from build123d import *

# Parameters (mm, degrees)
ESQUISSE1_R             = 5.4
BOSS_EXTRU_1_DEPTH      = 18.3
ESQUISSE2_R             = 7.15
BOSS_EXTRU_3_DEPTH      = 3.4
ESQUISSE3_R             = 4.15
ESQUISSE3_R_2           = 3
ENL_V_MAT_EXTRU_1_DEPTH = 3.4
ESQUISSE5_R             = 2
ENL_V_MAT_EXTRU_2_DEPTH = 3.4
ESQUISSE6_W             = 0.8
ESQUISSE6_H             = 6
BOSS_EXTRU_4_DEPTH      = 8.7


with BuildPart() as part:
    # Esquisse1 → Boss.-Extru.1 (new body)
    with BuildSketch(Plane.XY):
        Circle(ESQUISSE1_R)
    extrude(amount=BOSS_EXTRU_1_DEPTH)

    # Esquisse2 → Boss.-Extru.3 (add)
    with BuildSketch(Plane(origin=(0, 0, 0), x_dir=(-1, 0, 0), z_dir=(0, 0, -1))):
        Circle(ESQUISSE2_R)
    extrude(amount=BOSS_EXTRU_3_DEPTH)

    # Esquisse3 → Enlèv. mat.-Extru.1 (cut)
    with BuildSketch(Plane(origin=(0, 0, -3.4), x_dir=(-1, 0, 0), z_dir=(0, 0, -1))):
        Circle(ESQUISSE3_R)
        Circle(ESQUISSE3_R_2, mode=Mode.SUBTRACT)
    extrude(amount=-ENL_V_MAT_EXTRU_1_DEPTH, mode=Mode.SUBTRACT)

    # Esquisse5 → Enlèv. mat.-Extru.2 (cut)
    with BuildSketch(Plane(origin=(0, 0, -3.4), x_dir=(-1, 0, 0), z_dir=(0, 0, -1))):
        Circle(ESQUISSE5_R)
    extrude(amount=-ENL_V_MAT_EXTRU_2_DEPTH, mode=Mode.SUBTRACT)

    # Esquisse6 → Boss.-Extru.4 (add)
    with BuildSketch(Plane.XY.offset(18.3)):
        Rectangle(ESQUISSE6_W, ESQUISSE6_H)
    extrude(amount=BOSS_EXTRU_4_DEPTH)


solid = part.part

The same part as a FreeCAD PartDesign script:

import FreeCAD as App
import Part
import Sketcher
Q = App.Units.Quantity


def add_polygon(sketch, points):
    """Adds a closed chain of lines whose ends are joined by coincident constraints."""
    first, n = sketch.GeometryCount, len(points)
    for a, b in zip(points, points[1:] + points[:1]):
        sketch.addGeometry(Part.LineSegment(App.Vector(*a, 0), App.Vector(*b, 0)), False)
    for i in range(n):
        sketch.addConstraint(Sketcher.Constraint("Coincident", first + i, 2, first + (i + 1) % n, 1))

doc = App.newDocument("Part")
params = doc.addObject("Spreadsheet::Sheet", "Params")
for row, (alias, value) in enumerate([
    ("sketch1_diameter", "10.8 mm"),
    ("pad1_length", "18.3 mm"),
    ("sketch2_diameter", "14.3 mm"),
    ("pad2_length", "3.4 mm"),
    ("sketch3_diameter", "6 mm"),
    ("sketch3_diameter2", "8.3 mm"),
    ("pocket1_length", "3.4 mm"),
    ("sketch4_diameter", "4 mm"),
    ("pocket2_length", "3.4 mm"),
    ("sketch5_height", "6 mm"),
    ("sketch5_width", "0.8 mm"),
    ("pad3_length", "8.7 mm"),
], start=1):
    params.set(f"A{row}", alias)
    params.set(f"B{row}", "=" + value)
    params.setAlias(f"B{row}", alias)

body = doc.addObject("PartDesign::Body", "Body")

# Sketch on XY plane
sketch1 = doc.addObject("Sketcher::SketchObject", "Sketch")
body.addObject(sketch1)
sketch1.AttachmentSupport = (doc.XY_Plane, [""])
sketch1.MapMode = "FlatFace"
sketch1.addGeometry(Part.Circle(App.Vector(0, 0, 0), App.Vector(0, 0, 1), 5.4), False)
sketch1.addConstraint([
    Sketcher.Constraint("Coincident", 0, 3, -1, 1),
    Sketcher.Constraint("Diameter", 0, Q("10.8 mm")),
])
sketch1.setExpression("Constraints[1]", "Params.sketch1_diameter")
pad1 = doc.addObject("PartDesign::Pad", "Pad")
body.addObject(pad1)
pad1.Profile = sketch1
pad1.setExpression("Length", "Params.pad1_length")

# Sketch on XY plane
sketch2 = doc.addObject("Sketcher::SketchObject", "Sketch001")
body.addObject(sketch2)
sketch2.AttachmentSupport = (doc.XY_Plane, [""])
sketch2.MapMode = "FlatFace"
sketch2.addGeometry(Part.Circle(App.Vector(0, 0, 0), App.Vector(0, 0, 1), 7.15), False)
sketch2.addConstraint([
    Sketcher.Constraint("Coincident", 0, 3, -1, 1),
    Sketcher.Constraint("Diameter", 0, Q("14.3 mm")),
])
sketch2.setExpression("Constraints[1]", "Params.sketch2_diameter")
pad2 = doc.addObject("PartDesign::Pad", "Pad001")
body.addObject(pad2)
pad2.Profile = sketch2
pad2.setExpression("Length", "Params.pad2_length")
pad2.Reversed = True

# Sketch on XY plane
sketch3 = doc.addObject("Sketcher::SketchObject", "Sketch002")
body.addObject(sketch3)
sketch3.AttachmentSupport = (doc.XY_Plane, [""])
sketch3.MapMode = "FlatFace"
sketch3.AttachmentOffset = App.Placement(App.Vector(0, 0, -3.4), App.Rotation())
sketch3.addGeometry([
    Part.Circle(App.Vector(0, 0, 0), App.Vector(0, 0, 1), 4.15),
    Part.Circle(App.Vector(0, 0, 0), App.Vector(0, 0, 1), 3),
], False)
sketch3.addConstraint([
    Sketcher.Constraint("Coincident", 0, 3, -1, 1),
    Sketcher.Constraint("Coincident", 1, 3, -1, 1),
    Sketcher.Constraint("Diameter", 1, Q("6 mm")),
    Sketcher.Constraint("Diameter", 0, Q("8.3 mm")),
])
sketch3.setExpression("Constraints[2]", "Params.sketch3_diameter")
sketch3.setExpression("Constraints[3]", "Params.sketch3_diameter2")
pocket1 = doc.addObject("PartDesign::Pocket", "Pocket")
body.addObject(pocket1)
pocket1.Profile = sketch3
pocket1.setExpression("Length", "Params.pocket1_length")
pocket1.Reversed = True

# Sketch on XY plane
sketch4 = doc.addObject("Sketcher::SketchObject", "Sketch003")
body.addObject(sketch4)
sketch4.AttachmentSupport = (doc.XY_Plane, [""])
sketch4.MapMode = "FlatFace"
sketch4.AttachmentOffset = App.Placement(App.Vector(0, 0, -3.4), App.Rotation())
sketch4.addGeometry(Part.Circle(App.Vector(0, 0, 0), App.Vector(0, 0, 1), 2), False)
sketch4.addConstraint([
    Sketcher.Constraint("Coincident", 0, 3, -1, 1),
    Sketcher.Constraint("Diameter", 0, Q("4 mm")),
])
sketch4.setExpression("Constraints[1]", "Params.sketch4_diameter")
pocket2 = doc.addObject("PartDesign::Pocket", "Pocket001")
body.addObject(pocket2)
pocket2.Profile = sketch4
pocket2.setExpression("Length", "Params.pocket2_length")
pocket2.Reversed = True

# Sketch on XY plane
sketch5 = doc.addObject("Sketcher::SketchObject", "Sketch004")
body.addObject(sketch5)
sketch5.AttachmentSupport = (doc.XY_Plane, [""])
sketch5.MapMode = "FlatFace"
sketch5.AttachmentOffset = App.Placement(App.Vector(0, 0, 18.3), App.Rotation())
add_polygon(sketch5, [(-0.4, 3), (-0.4, -3), (0.4, -3), (0.4, 3)])  # lines 0-3
sketch5.addConstraint([
    Sketcher.Constraint("Vertical", 0),
    Sketcher.Constraint("Horizontal", 1),
    Sketcher.Constraint("Vertical", 2),
    Sketcher.Constraint("Horizontal", 3),
    Sketcher.Constraint("Symmetric", 0, 2, 2, 2, -1, 1),
    Sketcher.Constraint("DistanceY", 0, 2, 0, 1, Q("6 mm")),
    Sketcher.Constraint("DistanceX", 1, 1, 1, 2, Q("0.8 mm")),
])
sketch5.setExpression("Constraints[9]", "Params.sketch5_height")
sketch5.setExpression("Constraints[10]", "Params.sketch5_width")
pad3 = doc.addObject("PartDesign::Pad", "Pad002")
body.addObject(pad3)
pad3.Profile = sketch5
pad3.setExpression("Length", "Params.pad3_length")

doc.recompute()
